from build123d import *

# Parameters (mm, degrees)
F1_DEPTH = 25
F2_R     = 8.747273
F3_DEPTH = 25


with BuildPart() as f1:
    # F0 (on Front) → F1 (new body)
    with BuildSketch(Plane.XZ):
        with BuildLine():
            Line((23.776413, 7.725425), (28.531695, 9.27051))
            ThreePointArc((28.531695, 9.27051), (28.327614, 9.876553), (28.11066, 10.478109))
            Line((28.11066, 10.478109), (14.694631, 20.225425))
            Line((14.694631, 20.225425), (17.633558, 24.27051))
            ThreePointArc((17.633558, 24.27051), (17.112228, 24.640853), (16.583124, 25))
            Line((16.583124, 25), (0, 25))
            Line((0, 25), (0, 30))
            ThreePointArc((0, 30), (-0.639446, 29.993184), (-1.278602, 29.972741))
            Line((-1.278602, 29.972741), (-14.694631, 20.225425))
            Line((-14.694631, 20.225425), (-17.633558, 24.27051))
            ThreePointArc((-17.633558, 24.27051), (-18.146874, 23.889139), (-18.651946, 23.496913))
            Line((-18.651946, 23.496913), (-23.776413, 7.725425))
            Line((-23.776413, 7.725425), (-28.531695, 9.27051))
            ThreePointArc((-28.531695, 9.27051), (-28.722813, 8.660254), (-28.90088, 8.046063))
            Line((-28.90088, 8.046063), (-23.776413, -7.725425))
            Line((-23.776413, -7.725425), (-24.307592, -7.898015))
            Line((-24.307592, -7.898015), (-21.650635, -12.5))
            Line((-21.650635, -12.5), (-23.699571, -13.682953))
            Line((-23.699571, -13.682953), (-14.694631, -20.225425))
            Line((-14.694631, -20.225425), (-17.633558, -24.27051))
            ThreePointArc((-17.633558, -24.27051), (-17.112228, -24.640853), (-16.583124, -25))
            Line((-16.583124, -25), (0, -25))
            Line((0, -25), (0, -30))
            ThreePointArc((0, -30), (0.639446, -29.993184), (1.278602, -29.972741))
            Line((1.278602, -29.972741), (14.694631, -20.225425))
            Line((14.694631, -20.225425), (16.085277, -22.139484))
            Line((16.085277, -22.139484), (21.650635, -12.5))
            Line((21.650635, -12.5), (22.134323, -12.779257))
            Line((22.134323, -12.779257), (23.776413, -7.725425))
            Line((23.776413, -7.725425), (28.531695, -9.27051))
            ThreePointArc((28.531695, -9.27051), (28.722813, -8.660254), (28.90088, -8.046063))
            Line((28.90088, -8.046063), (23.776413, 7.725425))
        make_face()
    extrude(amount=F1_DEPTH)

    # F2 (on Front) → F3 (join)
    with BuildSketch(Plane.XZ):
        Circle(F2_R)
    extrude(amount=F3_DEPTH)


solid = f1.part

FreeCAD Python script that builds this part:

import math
import FreeCAD as App
import Part
import Sketcher

V = App.Vector
Q = App.Units.Quantity

doc = App.newDocument("Part")
body = doc.addObject("PartDesign::Body", "Body")

sketch1 = body.newObject("Sketcher::SketchObject", "Sketch")
sketch1.AttachmentSupport = (doc.getObject("XZ_Plane"), [""])
sketch1.MapMode = "FlatFace"
sketch1.addGeometry([
    Part.LineSegment(V(23.776413, 7.725425, 0), V(28.531695, 9.27051, 0)),
    Part.ArcOfCircle(Part.Circle(V(0.00274, 0.000955, 0), V(0, 0, 1), 29.997099), math.radians(17.999884), math.radians(20.442809)),
    Part.LineSegment(V(28.11066, 10.478109, 0), V(14.694631, 20.225425, 0)),
    Part.LineSegment(V(14.694631, 20.225425, 0), V(17.633558, 24.27051, 0)),
    Part.ArcOfCircle(Part.Circle(V(-0.001199, -0.001741, 0), V(0, 0, 1), 30.002113), math.radians(54.000102), math.radians(56.44262)),
    Part.LineSegment(V(16.583124, 25, 0), V(0, 25, 0)),
    Part.LineSegment(V(0, 25, 0), V(0, 30, 0)),
    Part.ArcOfCircle(Part.Circle(V(0.000045, -0.002598, 0), V(0, 0, 1), 30.002598), math.radians(90.000086), math.radians(92.442565)),
    Part.LineSegment(V(-1.278602, 29.972741, 0), V(-14.694631, 20.225425, 0)),
    Part.LineSegment(V(-14.694631, 20.225425, 0), V(-17.633558, 24.27051, 0)),
    Part.ArcOfCircle(Part.Circle(V(0.000831, -0.001085, 0), V(0, 0, 1), 30.001366), math.radians(126.000066), math.radians(128.442645)),
    Part.LineSegment(V(-18.651946, 23.496913, 0), V(-23.776413, 7.725425, 0)),
    Part.LineSegment(V(-23.776413, 7.725425, 0), V(-28.531695, 9.27051, 0)),
    Part.ArcOfCircle(Part.Circle(V(-0.000078, 0.000015, 0), V(0, 0, 1), 29.999921), math.radians(161.999982), math.radians(164.442679)),
    Part.LineSegment(V(-28.90088, 8.046063, 0), V(-23.776413, -7.725425, 0)),
    Part.LineSegment(V(-23.776413, -7.725425, 0), V(-24.307592, -7.898015, 0)),
    Part.LineSegment(V(-24.307592, -7.898015, 0), V(-21.650635, -12.5, 0)),
    Part.LineSegment(V(-21.650635, -12.5, 0), V(-23.699571, -13.682953, 0)),
    Part.LineSegment(V(-23.699571, -13.682953, 0), V(-14.694631, -20.225425, 0)),
    Part.LineSegment(V(-14.694631, -20.225425, 0), V(-17.633558, -24.27051, 0)),
    Part.ArcOfCircle(Part.Circle(V(0.001199, 0.001741, 0), V(0, 0, 1), 30.002113), math.radians(-125.999898), math.radians(-123.55738)),
    Part.LineSegment(V(-16.583124, -25, 0), V(0, -25, 0)),
    Part.LineSegment(V(0, -25, 0), V(0, -30, 0)),
    Part.ArcOfCircle(Part.Circle(V(-0.000045, 0.002598, 0), V(0, 0, 1), 30.002598), math.radians(-89.999914), math.radians(-87.557435)),
    Part.LineSegment(V(1.278602, -29.972741, 0), V(14.694631, -20.225425, 0)),
    Part.LineSegment(V(14.694631, -20.225425, 0), V(16.085277, -22.139484, 0)),
    Part.LineSegment(V(16.085277, -22.139484, 0), V(21.650635, -12.5, 0)),
    Part.LineSegment(V(21.650635, -12.5, 0), V(22.134323, -12.779257, 0)),
    Part.LineSegment(V(22.134323, -12.779257, 0), V(23.776413, -7.725425, 0)),
    Part.LineSegment(V(23.776413, -7.725425, 0), V(28.531695, -9.27051, 0)),
    Part.ArcOfCircle(Part.Circle(V(0.000078, -0.000015, 0), V(0, 0, 1), 29.999921), math.radians(-18.000018), math.radians(-15.557321)),
    Part.LineSegment(V(28.90088, -8.046063, 0), V(23.776413, 7.725425, 0)),
], False)
sketch1.addConstraint([
    Sketcher.Constraint("Coincident", 0, 2, 1, 1),
    Sketcher.Constraint("Coincident", 1, 2, 2, 1),
    Sketcher.Constraint("Coincident", 2, 2, 3, 1),
    Sketcher.Constraint("Coincident", 3, 2, 4, 1),
    Sketcher.Constraint("Coincident", 4, 2, 5, 1),
    Sketcher.Constraint("Coincident", 5, 2, 6, 1),
    Sketcher.Constraint("Coincident", 6, 2, 7, 1),
    Sketcher.Constraint("Coincident", 7, 2, 8, 1),
    Sketcher.Constraint("Coincident", 8, 2, 9, 1),
    Sketcher.Constraint("Coincident", 9, 2, 10, 1),
    Sketcher.Constraint("Coincident", 10, 2, 11, 1),
    Sketcher.Constraint("Coincident", 11, 2, 12, 1),
    Sketcher.Constraint("Coincident", 12, 2, 13, 1),
    Sketcher.Constraint("Coincident", 13, 2, 14, 1),
    Sketcher.Constraint("Coincident", 14, 2, 15, 1),
    Sketcher.Constraint("Coincident", 15, 2, 16, 1),
    Sketcher.Constraint("Coincident", 16, 2, 17, 1),
    Sketcher.Constraint("Coincident", 17, 2, 18, 1),
    Sketcher.Constraint("Coincident", 18, 2, 19, 1),
    Sketcher.Constraint("Coincident", 19, 2, 20, 1),
    Sketcher.Constraint("Coincident", 20, 2, 21, 1),
    Sketcher.Constraint("Coincident", 21, 2, 22, 1),
    Sketcher.Constraint("Coincident", 22, 2, 23, 1),
    Sketcher.Constraint("Coincident", 23, 2, 24, 1),
    Sketcher.Constraint("Coincident", 24, 2, 25, 1),
    Sketcher.Constraint("Coincident", 25, 2, 26, 1),
    Sketcher.Constraint("Coincident", 26, 2, 27, 1),
    Sketcher.Constraint("Coincident", 27, 2, 28, 1),
    Sketcher.Constraint("Coincident", 28, 2, 29, 1),
    Sketcher.Constraint("Coincident", 29, 2, 30, 1),
    Sketcher.Constraint("Coincident", 30, 2, 31, 1),
    Sketcher.Constraint("Coincident", 31, 2, 0, 1),
    Sketcher.Constraint("Horizontal", 5),
    Sketcher.Constraint("Vertical", 6),
    Sketcher.Constraint("Horizontal", 21),
    Sketcher.Constraint("Vertical", 22),
    Sketcher.Constraint("Equal", 4, 20),
    Sketcher.Constraint("Equal", 7, 23),
    Sketcher.Constraint("Equal", 13, 30),
    Sketcher.Constraint("Symmetric", 4, 3, 20, 3, -1, 1),
    Sketcher.Constraint("Symmetric", 7, 3, 23, 3, -1, 1),
    Sketcher.Constraint("Symmetric", 13, 3, 30, 3, -1, 1),
    Sketcher.Constraint("Symmetric", 2, 2, 18, 2, -1, 1),
    Sketcher.Constraint("Symmetric", 5, 2, 21, 2, -1, 1),
    Sketcher.Constraint("Symmetric", 8, 2, 24, 2, -1, 1),
    Sketcher.Constraint("Symmetric", 11, 2, 28, 2, -1, 1),
    Sketcher.Constraint("Symmetric", 14, 2, 31, 2, -1, 1),
    Sketcher.Constraint("Symmetric", 2, 2, 8, 2, -2),
    Sketcher.Constraint("Symmetric", 3, 2, 9, 2, -2),
    Sketcher.Constraint("Symmetric", 0, 2, 12, 2, -2),
    Sketcher.Constraint("Symmetric", 16, 2, 26, 2, -2),
    Sketcher.Constraint("Symmetric", 14, 2, 28, 2, -2),
    Sketcher.Constraint("PointOnObject", 5, 2, -2),
    Sketcher.Constraint("Perpendicular", 2, 3),
    Sketcher.Constraint("Perpendicular", 8, 9),
    Sketcher.Constraint("Perpendicular", 11, 12),
    Sketcher.Constraint("Perpendicular", 0, 14),
    Sketcher.Constraint("Perpendicular", 14, 15),
    Sketcher.Constraint("Perpendicular", 16, 17),
    Sketcher.Constraint("Perpendicular", 3, 18),
    Sketcher.Constraint("Perpendicular", 18, 19),
    Sketcher.Constraint("Perpendicular", 9, 24),
    Sketcher.Constraint("Perpendicular", 24, 25),
    Sketcher.Constraint("Perpendicular", 26, 27),
    Sketcher.Constraint("Perpendicular", 12, 28),
    Sketcher.Constraint("Perpendicular", 28, 29),
    Sketcher.Constraint("Perpendicular", 15, 31),
    Sketcher.Constraint("Equal", 0, 3),
    Sketcher.Constraint("Equal", 2, 8),
    Sketcher.Constraint("Equal", 8, 11),
    Sketcher.Constraint("Equal", 11, 14),
    Sketcher.Constraint("Equal", 17, 25),
    Sketcher.Constraint("Equal", 18, 26),
    Sketcher.Constraint("Equal", 15, 27),
    Sketcher.Constraint("DistanceY", 6, 1, 6, 2, 5.0),
    Sketcher.Constraint("Angle", 0, Q("18.000002 deg")),
    Sketcher.Constraint("Angle", 2, Q("143.999999 deg")),
    Sketcher.Constraint("Angle", 16, Q("-60.000003 deg")),
    Sketcher.Constraint("Distance", 0, 4.999999),
    Sketcher.Constraint("DistanceY", -1, 1, 4, 2, 25.0),
    Sketcher.Constraint("DistanceY", 0, 2, 3, 2, 15.0),
    Sketcher.Constraint("DistanceY", 16, 2, -1, 1, 12.5),
    Sketcher.Constraint("Radius", 1, 29.997099),
    Sketcher.Constraint("Radius", 7, 30.002598),
    Sketcher.Constraint("Radius", 13, 29.999921),
    Sketcher.Constraint("Radius", 4, 30.002113),
    Sketcher.Constraint("Radius", 10, 30.001366),
    Sketcher.Constraint("DistanceX", 4, 3, -1, 1, 0.001199),
    Sketcher.Constraint("DistanceX", 7, 2, -1, 1, 1.278602),
    Sketcher.Constraint("DistanceY", 10, 3, 13, 3, 0.0011),
    Sketcher.Constraint("DistanceX", 3, 2, 1, 2, 10.477102),
])
pad1 = body.newObject("PartDesign::Pad", "Pad")
pad1.Profile = sketch1
pad1.Length = 25

sketch2 = body.newObject("Sketcher::SketchObject", "Sketch001")
sketch2.AttachmentSupport = (doc.getObject("XZ_Plane"), [""])
sketch2.MapMode = "FlatFace"
sketch2.addGeometry(Part.Circle(V(0, 0, 0), V(0, 0, 1), 8.747273), False)
sketch2.addConstraint([
    Sketcher.Constraint("Coincident", 0, 3, -1, 1),
    Sketcher.Constraint("Diameter", 0, 17.494546),
])
pad2 = body.newObject("PartDesign::Pad", "Pad001")
pad2.Profile = sketch2
pad2.Length = 25

doc.recompute()
